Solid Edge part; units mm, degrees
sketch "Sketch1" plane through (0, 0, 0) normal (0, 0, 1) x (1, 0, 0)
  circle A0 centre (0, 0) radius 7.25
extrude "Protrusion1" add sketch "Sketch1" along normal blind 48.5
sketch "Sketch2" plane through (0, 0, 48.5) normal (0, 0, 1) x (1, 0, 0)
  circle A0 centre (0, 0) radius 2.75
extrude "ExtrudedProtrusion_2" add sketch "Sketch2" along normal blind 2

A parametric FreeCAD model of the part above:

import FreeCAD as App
import Part
import Sketcher
from FreeCAD import Vector

doc = App.newDocument("Part")
body = doc.addObject("PartDesign::Body", "Body")

sketch1 = body.newObject("Sketcher::SketchObject", "Sketch")
sketch1.AttachmentSupport = (doc.getObject("XY_Plane"), [""])
sketch1.MapMode = "FlatFace"
sketch1.addGeometry(Part.Circle(Vector(0, 0, 0), Vector(0, 0, 1), 7.25), False)
sketch1.addConstraint([
    Sketcher.Constraint("Coincident", 0, 3, -1, 1),
    Sketcher.Constraint("Diameter", 0, 14.5),
])
pad1 = body.newObject("PartDesign::Pad", "Pad")
pad1.Profile = sketch1
pad1.Length = 48.5

sketch2 = body.newObject("Sketcher::SketchObject", "Sketch001")
sketch2.AttachmentSupport = (doc.getObject("XY_Plane"), [""])
sketch2.MapMode = "FlatFace"
sketch2.AttachmentOffset = App.Placement(Vector(0, 0, 48.5), App.Rotation())
sketch2.addGeometry(Part.Circle(Vector(0, 0, 0), Vector(0, 0, 1), 2.75), False)
sketch2.addConstraint([
    Sketcher.Constraint("Coincident", 0, 3, -1, 1),
    Sketcher.Constraint("Diameter", 0, 5.5),
])
pad2 = body.newObject("PartDesign::Pad", "Pad001")
pad2.Profile = sketch2
pad2.Length = 2

doc.recompute()
